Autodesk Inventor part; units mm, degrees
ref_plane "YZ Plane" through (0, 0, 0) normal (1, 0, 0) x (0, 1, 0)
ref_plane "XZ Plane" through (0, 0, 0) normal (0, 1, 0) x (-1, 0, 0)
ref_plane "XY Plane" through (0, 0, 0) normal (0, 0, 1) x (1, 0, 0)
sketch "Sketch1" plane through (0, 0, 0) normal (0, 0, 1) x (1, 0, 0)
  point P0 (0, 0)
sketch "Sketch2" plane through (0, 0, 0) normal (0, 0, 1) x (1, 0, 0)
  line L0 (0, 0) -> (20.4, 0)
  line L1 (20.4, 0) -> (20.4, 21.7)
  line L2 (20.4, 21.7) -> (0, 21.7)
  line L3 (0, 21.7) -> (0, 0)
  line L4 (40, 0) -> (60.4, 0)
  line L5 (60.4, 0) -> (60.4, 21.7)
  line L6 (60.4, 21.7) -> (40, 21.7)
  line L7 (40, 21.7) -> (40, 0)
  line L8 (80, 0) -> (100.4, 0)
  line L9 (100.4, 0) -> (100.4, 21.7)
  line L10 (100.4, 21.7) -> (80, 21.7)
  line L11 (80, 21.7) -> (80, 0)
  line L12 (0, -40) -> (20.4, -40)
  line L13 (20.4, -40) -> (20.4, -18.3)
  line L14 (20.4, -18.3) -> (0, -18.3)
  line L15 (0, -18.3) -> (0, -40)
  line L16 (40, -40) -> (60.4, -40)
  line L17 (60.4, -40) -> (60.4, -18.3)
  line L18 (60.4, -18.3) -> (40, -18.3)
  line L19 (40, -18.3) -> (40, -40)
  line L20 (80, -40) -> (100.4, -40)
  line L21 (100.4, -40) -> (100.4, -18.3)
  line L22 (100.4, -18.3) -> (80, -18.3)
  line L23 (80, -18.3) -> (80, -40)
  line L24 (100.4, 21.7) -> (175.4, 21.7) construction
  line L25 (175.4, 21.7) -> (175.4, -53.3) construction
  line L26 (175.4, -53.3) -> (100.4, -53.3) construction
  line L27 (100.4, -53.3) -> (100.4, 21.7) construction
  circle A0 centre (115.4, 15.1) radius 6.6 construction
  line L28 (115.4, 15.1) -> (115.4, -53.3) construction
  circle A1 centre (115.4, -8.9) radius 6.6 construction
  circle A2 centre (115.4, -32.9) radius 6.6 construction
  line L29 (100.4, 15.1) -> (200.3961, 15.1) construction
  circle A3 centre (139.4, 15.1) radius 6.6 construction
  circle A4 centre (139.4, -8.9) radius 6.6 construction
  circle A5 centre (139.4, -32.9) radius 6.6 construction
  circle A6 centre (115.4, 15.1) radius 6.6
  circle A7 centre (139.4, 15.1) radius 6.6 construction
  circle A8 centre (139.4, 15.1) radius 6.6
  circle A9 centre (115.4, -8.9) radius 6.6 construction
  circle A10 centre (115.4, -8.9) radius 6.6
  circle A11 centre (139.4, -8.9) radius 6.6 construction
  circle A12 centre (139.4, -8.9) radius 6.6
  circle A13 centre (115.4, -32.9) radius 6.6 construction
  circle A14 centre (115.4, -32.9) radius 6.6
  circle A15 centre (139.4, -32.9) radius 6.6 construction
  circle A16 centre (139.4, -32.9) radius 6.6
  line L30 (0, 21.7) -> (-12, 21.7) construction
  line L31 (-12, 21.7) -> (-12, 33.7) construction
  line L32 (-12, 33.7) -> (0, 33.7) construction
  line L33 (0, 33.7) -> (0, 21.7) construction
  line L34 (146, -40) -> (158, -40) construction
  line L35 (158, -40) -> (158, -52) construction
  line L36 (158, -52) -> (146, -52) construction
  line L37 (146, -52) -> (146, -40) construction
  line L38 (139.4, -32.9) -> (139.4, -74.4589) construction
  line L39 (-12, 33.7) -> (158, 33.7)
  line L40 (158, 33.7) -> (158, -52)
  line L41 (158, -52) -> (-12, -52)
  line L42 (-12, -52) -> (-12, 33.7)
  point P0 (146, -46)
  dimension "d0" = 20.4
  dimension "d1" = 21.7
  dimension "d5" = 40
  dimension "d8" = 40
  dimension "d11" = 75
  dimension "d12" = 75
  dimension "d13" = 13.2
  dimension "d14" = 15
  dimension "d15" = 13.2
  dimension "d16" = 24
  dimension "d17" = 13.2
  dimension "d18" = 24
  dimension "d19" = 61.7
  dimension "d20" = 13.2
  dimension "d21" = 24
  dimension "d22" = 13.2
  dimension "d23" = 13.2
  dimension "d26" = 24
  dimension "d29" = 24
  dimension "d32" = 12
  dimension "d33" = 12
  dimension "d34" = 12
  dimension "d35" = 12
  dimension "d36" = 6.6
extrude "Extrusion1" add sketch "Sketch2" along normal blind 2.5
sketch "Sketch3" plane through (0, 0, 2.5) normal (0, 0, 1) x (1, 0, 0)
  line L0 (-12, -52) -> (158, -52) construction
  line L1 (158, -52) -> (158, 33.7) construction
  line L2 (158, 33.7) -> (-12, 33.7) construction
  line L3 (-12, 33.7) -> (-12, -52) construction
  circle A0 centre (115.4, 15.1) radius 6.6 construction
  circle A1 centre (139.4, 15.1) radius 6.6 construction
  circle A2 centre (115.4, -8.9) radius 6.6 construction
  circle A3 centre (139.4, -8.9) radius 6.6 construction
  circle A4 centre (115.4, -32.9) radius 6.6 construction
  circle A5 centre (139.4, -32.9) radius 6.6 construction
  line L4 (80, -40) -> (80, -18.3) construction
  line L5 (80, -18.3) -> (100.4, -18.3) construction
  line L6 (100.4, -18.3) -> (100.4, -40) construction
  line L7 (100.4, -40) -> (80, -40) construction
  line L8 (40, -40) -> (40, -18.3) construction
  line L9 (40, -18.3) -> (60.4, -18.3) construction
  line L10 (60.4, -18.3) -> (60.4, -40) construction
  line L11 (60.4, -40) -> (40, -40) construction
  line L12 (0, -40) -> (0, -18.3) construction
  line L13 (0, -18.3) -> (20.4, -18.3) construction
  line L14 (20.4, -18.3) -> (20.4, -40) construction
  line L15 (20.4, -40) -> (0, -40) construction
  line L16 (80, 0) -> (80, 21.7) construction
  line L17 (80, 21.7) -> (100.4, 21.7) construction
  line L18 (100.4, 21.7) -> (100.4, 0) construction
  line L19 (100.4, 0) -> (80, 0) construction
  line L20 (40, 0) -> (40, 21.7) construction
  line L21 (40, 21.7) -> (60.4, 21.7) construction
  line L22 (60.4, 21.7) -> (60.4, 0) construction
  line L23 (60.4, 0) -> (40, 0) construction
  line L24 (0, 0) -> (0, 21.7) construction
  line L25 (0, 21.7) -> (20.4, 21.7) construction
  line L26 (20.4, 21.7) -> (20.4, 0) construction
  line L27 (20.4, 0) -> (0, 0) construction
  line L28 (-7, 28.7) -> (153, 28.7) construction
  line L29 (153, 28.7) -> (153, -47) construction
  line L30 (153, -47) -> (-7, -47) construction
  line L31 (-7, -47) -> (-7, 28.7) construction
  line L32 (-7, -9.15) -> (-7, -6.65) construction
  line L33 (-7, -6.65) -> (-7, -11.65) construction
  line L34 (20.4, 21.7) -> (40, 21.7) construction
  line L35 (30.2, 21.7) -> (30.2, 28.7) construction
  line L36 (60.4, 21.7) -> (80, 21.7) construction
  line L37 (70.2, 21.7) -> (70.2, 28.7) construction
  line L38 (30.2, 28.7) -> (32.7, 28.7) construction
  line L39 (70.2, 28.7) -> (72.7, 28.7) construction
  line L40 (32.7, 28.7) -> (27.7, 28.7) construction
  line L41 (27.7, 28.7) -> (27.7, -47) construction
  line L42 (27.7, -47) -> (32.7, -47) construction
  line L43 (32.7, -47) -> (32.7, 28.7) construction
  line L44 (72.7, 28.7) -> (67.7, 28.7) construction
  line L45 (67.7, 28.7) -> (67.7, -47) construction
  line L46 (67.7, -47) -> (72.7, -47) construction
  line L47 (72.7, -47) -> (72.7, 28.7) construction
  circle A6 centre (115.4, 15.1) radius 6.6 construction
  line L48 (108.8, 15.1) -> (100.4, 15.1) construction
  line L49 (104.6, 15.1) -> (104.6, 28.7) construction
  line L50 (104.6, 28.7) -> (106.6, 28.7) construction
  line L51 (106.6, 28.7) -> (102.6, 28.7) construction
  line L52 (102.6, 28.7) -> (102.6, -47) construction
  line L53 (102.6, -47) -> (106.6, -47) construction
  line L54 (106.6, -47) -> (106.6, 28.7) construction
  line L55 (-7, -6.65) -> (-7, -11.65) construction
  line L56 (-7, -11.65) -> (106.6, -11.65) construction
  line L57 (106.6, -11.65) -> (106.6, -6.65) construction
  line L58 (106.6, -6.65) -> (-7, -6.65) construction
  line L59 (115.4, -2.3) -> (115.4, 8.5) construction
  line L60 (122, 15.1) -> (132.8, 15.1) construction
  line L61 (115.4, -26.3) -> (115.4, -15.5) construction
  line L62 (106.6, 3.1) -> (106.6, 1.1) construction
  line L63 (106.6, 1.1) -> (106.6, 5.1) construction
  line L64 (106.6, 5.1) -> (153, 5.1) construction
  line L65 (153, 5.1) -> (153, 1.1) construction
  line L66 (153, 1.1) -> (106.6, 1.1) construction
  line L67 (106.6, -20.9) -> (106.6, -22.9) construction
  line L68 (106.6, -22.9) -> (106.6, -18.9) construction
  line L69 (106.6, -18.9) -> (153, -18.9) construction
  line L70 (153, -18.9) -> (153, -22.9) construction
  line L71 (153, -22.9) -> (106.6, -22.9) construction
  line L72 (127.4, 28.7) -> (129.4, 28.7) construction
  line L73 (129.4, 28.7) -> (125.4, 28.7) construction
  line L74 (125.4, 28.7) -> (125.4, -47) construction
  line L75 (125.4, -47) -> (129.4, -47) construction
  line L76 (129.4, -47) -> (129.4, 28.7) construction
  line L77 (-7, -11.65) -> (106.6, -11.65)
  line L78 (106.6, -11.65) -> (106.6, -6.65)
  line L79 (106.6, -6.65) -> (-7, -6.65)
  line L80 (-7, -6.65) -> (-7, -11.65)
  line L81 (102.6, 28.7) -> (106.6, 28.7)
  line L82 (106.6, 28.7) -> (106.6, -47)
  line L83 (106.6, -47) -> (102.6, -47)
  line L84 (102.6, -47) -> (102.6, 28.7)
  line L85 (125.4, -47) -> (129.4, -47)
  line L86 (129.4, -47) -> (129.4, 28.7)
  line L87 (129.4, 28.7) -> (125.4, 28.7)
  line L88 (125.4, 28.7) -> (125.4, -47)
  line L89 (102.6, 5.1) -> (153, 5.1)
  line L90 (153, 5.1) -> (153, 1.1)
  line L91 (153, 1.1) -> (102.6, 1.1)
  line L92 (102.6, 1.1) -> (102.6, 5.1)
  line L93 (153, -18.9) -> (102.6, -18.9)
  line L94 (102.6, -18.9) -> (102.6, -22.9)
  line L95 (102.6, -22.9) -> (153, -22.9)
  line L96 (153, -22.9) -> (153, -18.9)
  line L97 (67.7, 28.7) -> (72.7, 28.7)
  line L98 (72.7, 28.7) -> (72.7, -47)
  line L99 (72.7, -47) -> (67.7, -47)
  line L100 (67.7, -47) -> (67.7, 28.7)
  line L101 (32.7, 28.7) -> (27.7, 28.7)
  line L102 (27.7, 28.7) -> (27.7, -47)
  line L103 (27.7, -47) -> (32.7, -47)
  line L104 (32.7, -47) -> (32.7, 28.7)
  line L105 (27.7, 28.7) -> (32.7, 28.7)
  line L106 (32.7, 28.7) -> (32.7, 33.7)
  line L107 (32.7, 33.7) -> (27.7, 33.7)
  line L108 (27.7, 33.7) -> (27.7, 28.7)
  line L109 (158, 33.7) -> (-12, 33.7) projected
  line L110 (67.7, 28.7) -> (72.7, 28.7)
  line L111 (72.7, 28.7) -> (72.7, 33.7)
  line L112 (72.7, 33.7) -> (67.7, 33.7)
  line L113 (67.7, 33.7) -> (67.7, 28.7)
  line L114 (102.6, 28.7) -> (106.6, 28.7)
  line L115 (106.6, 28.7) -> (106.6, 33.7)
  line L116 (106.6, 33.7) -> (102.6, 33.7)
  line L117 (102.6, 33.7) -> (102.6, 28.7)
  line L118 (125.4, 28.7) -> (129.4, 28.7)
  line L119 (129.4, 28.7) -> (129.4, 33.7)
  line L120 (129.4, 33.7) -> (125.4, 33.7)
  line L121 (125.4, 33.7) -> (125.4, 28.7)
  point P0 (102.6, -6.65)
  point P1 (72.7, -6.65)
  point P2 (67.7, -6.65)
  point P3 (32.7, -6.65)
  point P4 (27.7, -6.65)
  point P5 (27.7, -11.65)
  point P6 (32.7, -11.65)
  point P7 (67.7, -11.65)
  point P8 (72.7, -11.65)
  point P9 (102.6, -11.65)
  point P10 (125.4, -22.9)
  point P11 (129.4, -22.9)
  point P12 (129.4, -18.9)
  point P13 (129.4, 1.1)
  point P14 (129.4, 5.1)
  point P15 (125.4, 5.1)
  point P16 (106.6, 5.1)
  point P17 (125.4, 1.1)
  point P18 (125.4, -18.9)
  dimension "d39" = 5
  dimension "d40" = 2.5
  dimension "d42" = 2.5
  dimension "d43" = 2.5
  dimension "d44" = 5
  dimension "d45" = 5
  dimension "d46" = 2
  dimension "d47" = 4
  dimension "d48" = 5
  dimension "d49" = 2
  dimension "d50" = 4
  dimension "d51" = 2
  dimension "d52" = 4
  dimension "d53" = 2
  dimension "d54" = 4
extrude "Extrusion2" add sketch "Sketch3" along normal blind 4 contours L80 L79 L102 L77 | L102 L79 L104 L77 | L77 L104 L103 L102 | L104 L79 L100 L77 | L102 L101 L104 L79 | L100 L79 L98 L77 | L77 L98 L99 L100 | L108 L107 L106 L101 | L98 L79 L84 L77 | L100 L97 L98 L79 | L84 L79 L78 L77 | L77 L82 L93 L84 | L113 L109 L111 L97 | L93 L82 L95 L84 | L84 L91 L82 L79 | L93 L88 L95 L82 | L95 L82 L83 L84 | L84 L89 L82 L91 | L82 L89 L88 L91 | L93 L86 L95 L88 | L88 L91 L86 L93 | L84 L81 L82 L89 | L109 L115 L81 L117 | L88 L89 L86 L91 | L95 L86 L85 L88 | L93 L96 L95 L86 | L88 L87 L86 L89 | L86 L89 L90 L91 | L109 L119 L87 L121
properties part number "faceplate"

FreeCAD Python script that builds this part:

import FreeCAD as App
import Part
import Sketcher

V = App.Vector
Q = App.Units.Quantity


def add_polygon(sketch, points):
    """Adds a closed chain of lines whose ends are joined by coincident constraints."""
    first, n = sketch.GeometryCount, len(points)
    for a, b in zip(points, points[1:] + points[:1]):
        sketch.addGeometry(Part.LineSegment(App.Vector(*a, 0), App.Vector(*b, 0)), False)
    for i in range(n):
        sketch.addConstraint(Sketcher.Constraint("Coincident", first + i, 2, first + (i + 1) % n, 1))

doc = App.newDocument("Part")
body = doc.addObject("PartDesign::Body", "Body")

sketch1 = body.newObject("Sketcher::SketchObject", "Sketch")
sketch1.AttachmentSupport = (doc.getObject("XY_Plane"), [""])
sketch1.MapMode = "FlatFace"
add_polygon(sketch1, [(158, 34), (-12, 34), (-12, -52), (158, -52)])
add_polygon(sketch1, [(20, -40), (0, -40), (0, -18), (20, -18)])
add_polygon(sketch1, [(60, -40), (40, -40), (40, -18), (60, -18)])
sketch1.addGeometry(Part.Circle(V(115, -33, 0), V(0, 0, 1), 7), False)
sketch1.addGeometry(Part.Circle(V(139, -33, 0), V(0, 0, 1), 7), False)
add_polygon(sketch1, [(100, -40), (80, -40), (80, -18), (100, -18)])
add_polygon(sketch1, [(20, 0), (0, 0), (0, 22), (20, 22)])
add_polygon(sketch1, [(60, 0), (40, 0), (40, 22), (60, 22)])
sketch1.addGeometry(Part.Circle(V(115, -9, 0), V(0, 0, 1), 7), False)
add_polygon(sketch1, [(100, 0), (80, 0), (80, 22), (100, 22)])
sketch1.addGeometry(Part.Circle(V(139, -9, 0), V(0, 0, 1), 7), False)
sketch1.addGeometry(Part.Circle(V(115, 15, 0), V(0, 0, 1), 7), False)
sketch1.addGeometry(Part.Circle(V(139, 15, 0), V(0, 0, 1), 7), False)
sketch1.addConstraint([
    Sketcher.Constraint("Horizontal", 0),
    Sketcher.Constraint("Vertical", 1),
    Sketcher.Constraint("Horizontal", 2),
    Sketcher.Constraint("Vertical", 3),
    Sketcher.Constraint("Horizontal", 4),
    Sketcher.Constraint("Vertical", 5),
    Sketcher.Constraint("Horizontal", 6),
    Sketcher.Constraint("Vertical", 7),
    Sketcher.Constraint("Horizontal", 8),
    Sketcher.Constraint("Vertical", 9),
    Sketcher.Constraint("Horizontal", 10),
    Sketcher.Constraint("Vertical", 11),
    Sketcher.Constraint("Horizontal", 14),
    Sketcher.Constraint("Vertical", 15),
    Sketcher.Constraint("Horizontal", 16),
    Sketcher.Constraint("Vertical", 17),
    Sketcher.Constraint("Horizontal", 18),
    Sketcher.Constraint("Vertical", 19),
    Sketcher.Constraint("Horizontal", 20),
    Sketcher.Constraint("Vertical", 21),
    Sketcher.Constraint("Horizontal", 22),
    Sketcher.Constraint("Vertical", 23),
    Sketcher.Constraint("Horizontal", 24),
    Sketcher.Constraint("Vertical", 25),
    Sketcher.Constraint("Horizontal", 27),
    Sketcher.Constraint("Vertical", 28),
    Sketcher.Constraint("Horizontal", 29),
    Sketcher.Constraint("Vertical", 30),
    Sketcher.Constraint("Coincident", 18, 2, -1, 1),
    Sketcher.Constraint("Equal", 12, 13),
    Sketcher.Constraint("Equal", 13, 26),
    Sketcher.Constraint("Equal", 26, 31),
    Sketcher.Constraint("Equal", 31, 32),
    Sketcher.Constraint("Equal", 32, 33),
    Sketcher.Constraint("PointOnObject", 4, 2, -2),
    Sketcher.Constraint("PointOnObject", 22, 2, -1),
    Sketcher.Constraint("PointOnObject", 27, 2, -1),
    Sketcher.Constraint("Horizontal", 12, 3, 13, 3),
    Sketcher.Constraint("Horizontal", 26, 3, 31, 3),
    Sketcher.Constraint("Horizontal", 32, 3, 33, 3),
    Sketcher.Constraint("Horizontal", 7, 2, 8, 2),
    Sketcher.Constraint("Horizontal", 6, 2, 9, 2),
    Sketcher.Constraint("Horizontal", 11, 2, 14, 2),
    Sketcher.Constraint("Horizontal", 10, 2, 15, 2),
    Sketcher.Constraint("Horizontal", 20, 2, 23, 2),
    Sketcher.Constraint("Horizontal", 24, 2, 28, 2),
    Sketcher.Constraint("Vertical", 12, 3, 26, 3),
    Sketcher.Constraint("Vertical", 13, 3, 31, 3),
    Sketcher.Constraint("Vertical", 26, 3, 32, 3),
    Sketcher.Constraint("Vertical", 31, 3, 33, 3),
    Sketcher.Constraint("Vertical", 7, 2, 20, 2),
    Sketcher.Constraint("Vertical", 9, 2, 22, 2),
    Sketcher.Constraint("Vertical", 11, 2, 24, 2),
    Sketcher.Constraint("Vertical", 15, 2, 27, 2),
    Sketcher.Constraint("Vertical", 17, 2, 29, 2),
    Sketcher.Constraint("Equal", 6, 8),
    Sketcher.Constraint("Equal", 10, 14),
    Sketcher.Constraint("Equal", 17, 19),
    Sketcher.Constraint("Diameter", 12, Q("13.2 mm")),
    Sketcher.Constraint("DistanceX", 4, 2, 4, 1, Q("20.4 mm")),
    Sketcher.Constraint("DistanceY", 5, 1, 5, 2, Q("21.7 mm")),
    Sketcher.Constraint("DistanceX", 0, 2, -1, 1, Q("12 mm")),
    Sketcher.Constraint("DistanceY", 4, 2, -1, 1, Q("40 mm")),
    Sketcher.Constraint("DistanceX", -1, 1, 8, 2, Q("40 mm")),
    Sketcher.Constraint("DistanceX", 12, 3, 13, 3, Q("24 mm")),
    Sketcher.Constraint("DistanceY", 12, 3, 26, 3, Q("24 mm")),
    Sketcher.Constraint("DistanceY", 26, 3, 32, 3, Q("24 mm")),
    Sketcher.Constraint("DistanceY", 1, 2, 4, 2, Q("12 mm")),
    Sketcher.Constraint("DistanceX", 8, 2, 14, 2, Q("40 mm")),
    Sketcher.Constraint("DistanceX", 16, 2, 26, 3, Q("15 mm")),
    Sketcher.Constraint("DistanceY", 19, 2, 0, 2, Q("12 mm")),
    Sketcher.Constraint("DistanceY", 32, 3, 28, 2, Q("6.6 mm")),
    Sketcher.Constraint("DistanceX", 0, 2, 0, 1, Q("170 mm")),
])
pad1 = body.newObject("PartDesign::Pad", "Pad")
pad1.Profile = sketch1
pad1.Length = 2.5

sketch2 = body.newObject("Sketcher::SketchObject", "Sketch001")
sketch2.AttachmentSupport = (doc.getObject("XY_Plane"), [""])
sketch2.MapMode = "FlatFace"
sketch2.AttachmentOffset = App.Placement(V(0, 0, 2.5), App.Rotation())
add_polygon(sketch2, [(-7, -6.7), (-7, -11.7), (27.7, -11.7), (27.7, -47), (32.7, -47), (32.7, -11.7), (67.7, -11.7), (67.7, -47), (72.7, -47), (72.7, -11.7), (102.6, -11.7), (102.6, -47), (106.6, -47), (106.6, -22.9), (125.4, -22.9), (125.4, -47), (129.4, -47), (129.4, -22.9), (153, -22.9), (153, -18.9), (129.4, -18.9), (129.4, 1.1), (153, 1.1), (153, 5.1), (129.4, 5.1), (129.4, 33.7), (125.4, 33.7), (125.4, 5.1), (106.6, 5.1), (106.6, 33.7), (102.6, 33.7), (102.6, -6.7), (72.7, -6.7), (72.7, 33.7), (67.7, 33.7), (67.7, -6.7), (32.7, -6.7), (32.7, 33.7), (27.7, 33.7), (27.7, -6.7)])
add_polygon(sketch2, [(106.6, 1.1), (125.4, 1.1), (125.4, -18.9), (106.6, -18.9)])
sketch2.addConstraint([
    Sketcher.Constraint("Vertical", 0),
    Sketcher.Constraint("Horizontal", 1),
    Sketcher.Constraint("Vertical", 2),
    Sketcher.Constraint("Horizontal", 3),
    Sketcher.Constraint("Vertical", 4),
    Sketcher.Constraint("Horizontal", 5),
    Sketcher.Constraint("Vertical", 6),
    Sketcher.Constraint("Horizontal", 7),
    Sketcher.Constraint("Vertical", 8),
    Sketcher.Constraint("Horizontal", 9),
    Sketcher.Constraint("Vertical", 10),
    Sketcher.Constraint("Horizontal", 11),
    Sketcher.Constraint("Vertical", 12),
    Sketcher.Constraint("Horizontal", 13),
    Sketcher.Constraint("Vertical", 14),
    Sketcher.Constraint("Horizontal", 15),
    Sketcher.Constraint("Vertical", 16),
    Sketcher.Constraint("Horizontal", 17),
    Sketcher.Constraint("Vertical", 18),
    Sketcher.Constraint("Horizontal", 19),
    Sketcher.Constraint("Vertical", 20),
    Sketcher.Constraint("Horizontal", 21),
    Sketcher.Constraint("Vertical", 22),
    Sketcher.Constraint("Horizontal", 23),
    Sketcher.Constraint("Vertical", 24),
    Sketcher.Constraint("Horizontal", 25),
    Sketcher.Constraint("Vertical", 26),
    Sketcher.Constraint("Horizontal", 27),
    Sketcher.Constraint("Vertical", 28),
    Sketcher.Constraint("Horizontal", 29),
    Sketcher.Constraint("Vertical", 30),
    Sketcher.Constraint("Horizontal", 31),
    Sketcher.Constraint("Vertical", 32),
    Sketcher.Constraint("Horizontal", 33),
    Sketcher.Constraint("Vertical", 34),
    Sketcher.Constraint("Horizontal", 35),
    Sketcher.Constraint("Vertical", 36),
    Sketcher.Constraint("Horizontal", 37),
    Sketcher.Constraint("Vertical", 38),
    Sketcher.Constraint("Horizontal", 39),
    Sketcher.Constraint("Horizontal", 40),
    Sketcher.Constraint("Vertical", 41),
    Sketcher.Constraint("Horizontal", 42),
    Sketcher.Constraint("Vertical", 43),
    Sketcher.Constraint("Horizontal", 1, 2, 4, 2),
    Sketcher.Constraint("Horizontal", 3, 2, 6, 2),
    Sketcher.Constraint("Horizontal", 5, 2, 8, 2),
    Sketcher.Constraint("Horizontal", 7, 2, 10, 2),
    Sketcher.Constraint("Horizontal", 11, 2, 14, 2),
    Sketcher.Constraint("Horizontal", 13, 2, 16, 2),
    Sketcher.Constraint("Horizontal", 23, 2, 26, 2),
    Sketcher.Constraint("Horizontal", 25, 2, 28, 2),
    Sketcher.Constraint("Horizontal", 29, 2, 32, 2),
    Sketcher.Constraint("Horizontal", 31, 2, 34, 2),
    Sketcher.Constraint("Horizontal", 33, 2, 36, 2),
    Sketcher.Constraint("Horizontal", 35, 2, 38, 2),
    Sketcher.Constraint("Horizontal", 21, 2, 40, 2),
    Sketcher.Constraint("Horizontal", 19, 2, 41, 2),
    Sketcher.Constraint("Vertical", 16, 2, 19, 2),
    Sketcher.Constraint("Vertical", 18, 2, 21, 2),
    Sketcher.Constraint("Vertical", 20, 2, 23, 2),
    Sketcher.Constraint("Vertical", 14, 2, 25, 2),
    Sketcher.Constraint("Vertical", 12, 2, 27, 2),
    Sketcher.Constraint("Vertical", 10, 2, 29, 2),
    Sketcher.Constraint("Vertical", 8, 2, 31, 2),
    Sketcher.Constraint("Vertical", 6, 2, 33, 2),
    Sketcher.Constraint("Vertical", 4, 2, 35, 2),
    Sketcher.Constraint("Vertical", 2, 2, 37, 2),
    Sketcher.Constraint("Vertical", 26, 2, 40, 2),
    Sketcher.Constraint("Vertical", 28, 2, 42, 2),
    Sketcher.Constraint("Equal", 3, 7),
    Sketcher.Constraint("Equal", 11, 15),
    Sketcher.Constraint("Equal", 37, 0),
    Sketcher.Constraint("Equal", 29, 18),
    Sketcher.Constraint("Equal", 18, 22),
    Sketcher.Constraint("DistanceX", 3, 1, 3, 2, Q("5 mm")),
    Sketcher.Constraint("DistanceX", 11, 1, 11, 2, Q("4 mm")),
    Sketcher.Constraint("DistanceX", 5, 1, 5, 2, Q("35 mm")),
    Sketcher.Constraint("DistanceY", 20, 1, 20, 2, Q("20 mm")),
    Sketcher.Constraint("DistanceX", 1, 1, 1, 2, Q("34.7 mm")),
    Sketcher.Constraint("DistanceX", 9, 1, 9, 2, Q("29.9 mm")),
    Sketcher.Constraint("DistanceX", 13, 1, 13, 2, Q("18.8 mm")),
    Sketcher.Constraint("DistanceX", 17, 1, 17, 2, Q("23.6 mm")),
    Sketcher.Constraint("DistanceY", 12, 1, 12, 2, Q("24.1 mm")),
    Sketcher.Constraint("DistanceY", 24, 1, 24, 2, Q("28.6 mm")),
    Sketcher.Constraint("DistanceX", 0, 2, -1, 1, Q("7 mm")),
    Sketcher.Constraint("DistanceY", 2, 2, -1, 1, Q("47 mm")),
    Sketcher.Constraint("DistanceY", 2, 2, 2, 1, Q("35.35 mm")),
])
pad2 = body.newObject("PartDesign::Pad", "Pad001")
pad2.Profile = sketch2
pad2.Length = 4

doc.recompute()
